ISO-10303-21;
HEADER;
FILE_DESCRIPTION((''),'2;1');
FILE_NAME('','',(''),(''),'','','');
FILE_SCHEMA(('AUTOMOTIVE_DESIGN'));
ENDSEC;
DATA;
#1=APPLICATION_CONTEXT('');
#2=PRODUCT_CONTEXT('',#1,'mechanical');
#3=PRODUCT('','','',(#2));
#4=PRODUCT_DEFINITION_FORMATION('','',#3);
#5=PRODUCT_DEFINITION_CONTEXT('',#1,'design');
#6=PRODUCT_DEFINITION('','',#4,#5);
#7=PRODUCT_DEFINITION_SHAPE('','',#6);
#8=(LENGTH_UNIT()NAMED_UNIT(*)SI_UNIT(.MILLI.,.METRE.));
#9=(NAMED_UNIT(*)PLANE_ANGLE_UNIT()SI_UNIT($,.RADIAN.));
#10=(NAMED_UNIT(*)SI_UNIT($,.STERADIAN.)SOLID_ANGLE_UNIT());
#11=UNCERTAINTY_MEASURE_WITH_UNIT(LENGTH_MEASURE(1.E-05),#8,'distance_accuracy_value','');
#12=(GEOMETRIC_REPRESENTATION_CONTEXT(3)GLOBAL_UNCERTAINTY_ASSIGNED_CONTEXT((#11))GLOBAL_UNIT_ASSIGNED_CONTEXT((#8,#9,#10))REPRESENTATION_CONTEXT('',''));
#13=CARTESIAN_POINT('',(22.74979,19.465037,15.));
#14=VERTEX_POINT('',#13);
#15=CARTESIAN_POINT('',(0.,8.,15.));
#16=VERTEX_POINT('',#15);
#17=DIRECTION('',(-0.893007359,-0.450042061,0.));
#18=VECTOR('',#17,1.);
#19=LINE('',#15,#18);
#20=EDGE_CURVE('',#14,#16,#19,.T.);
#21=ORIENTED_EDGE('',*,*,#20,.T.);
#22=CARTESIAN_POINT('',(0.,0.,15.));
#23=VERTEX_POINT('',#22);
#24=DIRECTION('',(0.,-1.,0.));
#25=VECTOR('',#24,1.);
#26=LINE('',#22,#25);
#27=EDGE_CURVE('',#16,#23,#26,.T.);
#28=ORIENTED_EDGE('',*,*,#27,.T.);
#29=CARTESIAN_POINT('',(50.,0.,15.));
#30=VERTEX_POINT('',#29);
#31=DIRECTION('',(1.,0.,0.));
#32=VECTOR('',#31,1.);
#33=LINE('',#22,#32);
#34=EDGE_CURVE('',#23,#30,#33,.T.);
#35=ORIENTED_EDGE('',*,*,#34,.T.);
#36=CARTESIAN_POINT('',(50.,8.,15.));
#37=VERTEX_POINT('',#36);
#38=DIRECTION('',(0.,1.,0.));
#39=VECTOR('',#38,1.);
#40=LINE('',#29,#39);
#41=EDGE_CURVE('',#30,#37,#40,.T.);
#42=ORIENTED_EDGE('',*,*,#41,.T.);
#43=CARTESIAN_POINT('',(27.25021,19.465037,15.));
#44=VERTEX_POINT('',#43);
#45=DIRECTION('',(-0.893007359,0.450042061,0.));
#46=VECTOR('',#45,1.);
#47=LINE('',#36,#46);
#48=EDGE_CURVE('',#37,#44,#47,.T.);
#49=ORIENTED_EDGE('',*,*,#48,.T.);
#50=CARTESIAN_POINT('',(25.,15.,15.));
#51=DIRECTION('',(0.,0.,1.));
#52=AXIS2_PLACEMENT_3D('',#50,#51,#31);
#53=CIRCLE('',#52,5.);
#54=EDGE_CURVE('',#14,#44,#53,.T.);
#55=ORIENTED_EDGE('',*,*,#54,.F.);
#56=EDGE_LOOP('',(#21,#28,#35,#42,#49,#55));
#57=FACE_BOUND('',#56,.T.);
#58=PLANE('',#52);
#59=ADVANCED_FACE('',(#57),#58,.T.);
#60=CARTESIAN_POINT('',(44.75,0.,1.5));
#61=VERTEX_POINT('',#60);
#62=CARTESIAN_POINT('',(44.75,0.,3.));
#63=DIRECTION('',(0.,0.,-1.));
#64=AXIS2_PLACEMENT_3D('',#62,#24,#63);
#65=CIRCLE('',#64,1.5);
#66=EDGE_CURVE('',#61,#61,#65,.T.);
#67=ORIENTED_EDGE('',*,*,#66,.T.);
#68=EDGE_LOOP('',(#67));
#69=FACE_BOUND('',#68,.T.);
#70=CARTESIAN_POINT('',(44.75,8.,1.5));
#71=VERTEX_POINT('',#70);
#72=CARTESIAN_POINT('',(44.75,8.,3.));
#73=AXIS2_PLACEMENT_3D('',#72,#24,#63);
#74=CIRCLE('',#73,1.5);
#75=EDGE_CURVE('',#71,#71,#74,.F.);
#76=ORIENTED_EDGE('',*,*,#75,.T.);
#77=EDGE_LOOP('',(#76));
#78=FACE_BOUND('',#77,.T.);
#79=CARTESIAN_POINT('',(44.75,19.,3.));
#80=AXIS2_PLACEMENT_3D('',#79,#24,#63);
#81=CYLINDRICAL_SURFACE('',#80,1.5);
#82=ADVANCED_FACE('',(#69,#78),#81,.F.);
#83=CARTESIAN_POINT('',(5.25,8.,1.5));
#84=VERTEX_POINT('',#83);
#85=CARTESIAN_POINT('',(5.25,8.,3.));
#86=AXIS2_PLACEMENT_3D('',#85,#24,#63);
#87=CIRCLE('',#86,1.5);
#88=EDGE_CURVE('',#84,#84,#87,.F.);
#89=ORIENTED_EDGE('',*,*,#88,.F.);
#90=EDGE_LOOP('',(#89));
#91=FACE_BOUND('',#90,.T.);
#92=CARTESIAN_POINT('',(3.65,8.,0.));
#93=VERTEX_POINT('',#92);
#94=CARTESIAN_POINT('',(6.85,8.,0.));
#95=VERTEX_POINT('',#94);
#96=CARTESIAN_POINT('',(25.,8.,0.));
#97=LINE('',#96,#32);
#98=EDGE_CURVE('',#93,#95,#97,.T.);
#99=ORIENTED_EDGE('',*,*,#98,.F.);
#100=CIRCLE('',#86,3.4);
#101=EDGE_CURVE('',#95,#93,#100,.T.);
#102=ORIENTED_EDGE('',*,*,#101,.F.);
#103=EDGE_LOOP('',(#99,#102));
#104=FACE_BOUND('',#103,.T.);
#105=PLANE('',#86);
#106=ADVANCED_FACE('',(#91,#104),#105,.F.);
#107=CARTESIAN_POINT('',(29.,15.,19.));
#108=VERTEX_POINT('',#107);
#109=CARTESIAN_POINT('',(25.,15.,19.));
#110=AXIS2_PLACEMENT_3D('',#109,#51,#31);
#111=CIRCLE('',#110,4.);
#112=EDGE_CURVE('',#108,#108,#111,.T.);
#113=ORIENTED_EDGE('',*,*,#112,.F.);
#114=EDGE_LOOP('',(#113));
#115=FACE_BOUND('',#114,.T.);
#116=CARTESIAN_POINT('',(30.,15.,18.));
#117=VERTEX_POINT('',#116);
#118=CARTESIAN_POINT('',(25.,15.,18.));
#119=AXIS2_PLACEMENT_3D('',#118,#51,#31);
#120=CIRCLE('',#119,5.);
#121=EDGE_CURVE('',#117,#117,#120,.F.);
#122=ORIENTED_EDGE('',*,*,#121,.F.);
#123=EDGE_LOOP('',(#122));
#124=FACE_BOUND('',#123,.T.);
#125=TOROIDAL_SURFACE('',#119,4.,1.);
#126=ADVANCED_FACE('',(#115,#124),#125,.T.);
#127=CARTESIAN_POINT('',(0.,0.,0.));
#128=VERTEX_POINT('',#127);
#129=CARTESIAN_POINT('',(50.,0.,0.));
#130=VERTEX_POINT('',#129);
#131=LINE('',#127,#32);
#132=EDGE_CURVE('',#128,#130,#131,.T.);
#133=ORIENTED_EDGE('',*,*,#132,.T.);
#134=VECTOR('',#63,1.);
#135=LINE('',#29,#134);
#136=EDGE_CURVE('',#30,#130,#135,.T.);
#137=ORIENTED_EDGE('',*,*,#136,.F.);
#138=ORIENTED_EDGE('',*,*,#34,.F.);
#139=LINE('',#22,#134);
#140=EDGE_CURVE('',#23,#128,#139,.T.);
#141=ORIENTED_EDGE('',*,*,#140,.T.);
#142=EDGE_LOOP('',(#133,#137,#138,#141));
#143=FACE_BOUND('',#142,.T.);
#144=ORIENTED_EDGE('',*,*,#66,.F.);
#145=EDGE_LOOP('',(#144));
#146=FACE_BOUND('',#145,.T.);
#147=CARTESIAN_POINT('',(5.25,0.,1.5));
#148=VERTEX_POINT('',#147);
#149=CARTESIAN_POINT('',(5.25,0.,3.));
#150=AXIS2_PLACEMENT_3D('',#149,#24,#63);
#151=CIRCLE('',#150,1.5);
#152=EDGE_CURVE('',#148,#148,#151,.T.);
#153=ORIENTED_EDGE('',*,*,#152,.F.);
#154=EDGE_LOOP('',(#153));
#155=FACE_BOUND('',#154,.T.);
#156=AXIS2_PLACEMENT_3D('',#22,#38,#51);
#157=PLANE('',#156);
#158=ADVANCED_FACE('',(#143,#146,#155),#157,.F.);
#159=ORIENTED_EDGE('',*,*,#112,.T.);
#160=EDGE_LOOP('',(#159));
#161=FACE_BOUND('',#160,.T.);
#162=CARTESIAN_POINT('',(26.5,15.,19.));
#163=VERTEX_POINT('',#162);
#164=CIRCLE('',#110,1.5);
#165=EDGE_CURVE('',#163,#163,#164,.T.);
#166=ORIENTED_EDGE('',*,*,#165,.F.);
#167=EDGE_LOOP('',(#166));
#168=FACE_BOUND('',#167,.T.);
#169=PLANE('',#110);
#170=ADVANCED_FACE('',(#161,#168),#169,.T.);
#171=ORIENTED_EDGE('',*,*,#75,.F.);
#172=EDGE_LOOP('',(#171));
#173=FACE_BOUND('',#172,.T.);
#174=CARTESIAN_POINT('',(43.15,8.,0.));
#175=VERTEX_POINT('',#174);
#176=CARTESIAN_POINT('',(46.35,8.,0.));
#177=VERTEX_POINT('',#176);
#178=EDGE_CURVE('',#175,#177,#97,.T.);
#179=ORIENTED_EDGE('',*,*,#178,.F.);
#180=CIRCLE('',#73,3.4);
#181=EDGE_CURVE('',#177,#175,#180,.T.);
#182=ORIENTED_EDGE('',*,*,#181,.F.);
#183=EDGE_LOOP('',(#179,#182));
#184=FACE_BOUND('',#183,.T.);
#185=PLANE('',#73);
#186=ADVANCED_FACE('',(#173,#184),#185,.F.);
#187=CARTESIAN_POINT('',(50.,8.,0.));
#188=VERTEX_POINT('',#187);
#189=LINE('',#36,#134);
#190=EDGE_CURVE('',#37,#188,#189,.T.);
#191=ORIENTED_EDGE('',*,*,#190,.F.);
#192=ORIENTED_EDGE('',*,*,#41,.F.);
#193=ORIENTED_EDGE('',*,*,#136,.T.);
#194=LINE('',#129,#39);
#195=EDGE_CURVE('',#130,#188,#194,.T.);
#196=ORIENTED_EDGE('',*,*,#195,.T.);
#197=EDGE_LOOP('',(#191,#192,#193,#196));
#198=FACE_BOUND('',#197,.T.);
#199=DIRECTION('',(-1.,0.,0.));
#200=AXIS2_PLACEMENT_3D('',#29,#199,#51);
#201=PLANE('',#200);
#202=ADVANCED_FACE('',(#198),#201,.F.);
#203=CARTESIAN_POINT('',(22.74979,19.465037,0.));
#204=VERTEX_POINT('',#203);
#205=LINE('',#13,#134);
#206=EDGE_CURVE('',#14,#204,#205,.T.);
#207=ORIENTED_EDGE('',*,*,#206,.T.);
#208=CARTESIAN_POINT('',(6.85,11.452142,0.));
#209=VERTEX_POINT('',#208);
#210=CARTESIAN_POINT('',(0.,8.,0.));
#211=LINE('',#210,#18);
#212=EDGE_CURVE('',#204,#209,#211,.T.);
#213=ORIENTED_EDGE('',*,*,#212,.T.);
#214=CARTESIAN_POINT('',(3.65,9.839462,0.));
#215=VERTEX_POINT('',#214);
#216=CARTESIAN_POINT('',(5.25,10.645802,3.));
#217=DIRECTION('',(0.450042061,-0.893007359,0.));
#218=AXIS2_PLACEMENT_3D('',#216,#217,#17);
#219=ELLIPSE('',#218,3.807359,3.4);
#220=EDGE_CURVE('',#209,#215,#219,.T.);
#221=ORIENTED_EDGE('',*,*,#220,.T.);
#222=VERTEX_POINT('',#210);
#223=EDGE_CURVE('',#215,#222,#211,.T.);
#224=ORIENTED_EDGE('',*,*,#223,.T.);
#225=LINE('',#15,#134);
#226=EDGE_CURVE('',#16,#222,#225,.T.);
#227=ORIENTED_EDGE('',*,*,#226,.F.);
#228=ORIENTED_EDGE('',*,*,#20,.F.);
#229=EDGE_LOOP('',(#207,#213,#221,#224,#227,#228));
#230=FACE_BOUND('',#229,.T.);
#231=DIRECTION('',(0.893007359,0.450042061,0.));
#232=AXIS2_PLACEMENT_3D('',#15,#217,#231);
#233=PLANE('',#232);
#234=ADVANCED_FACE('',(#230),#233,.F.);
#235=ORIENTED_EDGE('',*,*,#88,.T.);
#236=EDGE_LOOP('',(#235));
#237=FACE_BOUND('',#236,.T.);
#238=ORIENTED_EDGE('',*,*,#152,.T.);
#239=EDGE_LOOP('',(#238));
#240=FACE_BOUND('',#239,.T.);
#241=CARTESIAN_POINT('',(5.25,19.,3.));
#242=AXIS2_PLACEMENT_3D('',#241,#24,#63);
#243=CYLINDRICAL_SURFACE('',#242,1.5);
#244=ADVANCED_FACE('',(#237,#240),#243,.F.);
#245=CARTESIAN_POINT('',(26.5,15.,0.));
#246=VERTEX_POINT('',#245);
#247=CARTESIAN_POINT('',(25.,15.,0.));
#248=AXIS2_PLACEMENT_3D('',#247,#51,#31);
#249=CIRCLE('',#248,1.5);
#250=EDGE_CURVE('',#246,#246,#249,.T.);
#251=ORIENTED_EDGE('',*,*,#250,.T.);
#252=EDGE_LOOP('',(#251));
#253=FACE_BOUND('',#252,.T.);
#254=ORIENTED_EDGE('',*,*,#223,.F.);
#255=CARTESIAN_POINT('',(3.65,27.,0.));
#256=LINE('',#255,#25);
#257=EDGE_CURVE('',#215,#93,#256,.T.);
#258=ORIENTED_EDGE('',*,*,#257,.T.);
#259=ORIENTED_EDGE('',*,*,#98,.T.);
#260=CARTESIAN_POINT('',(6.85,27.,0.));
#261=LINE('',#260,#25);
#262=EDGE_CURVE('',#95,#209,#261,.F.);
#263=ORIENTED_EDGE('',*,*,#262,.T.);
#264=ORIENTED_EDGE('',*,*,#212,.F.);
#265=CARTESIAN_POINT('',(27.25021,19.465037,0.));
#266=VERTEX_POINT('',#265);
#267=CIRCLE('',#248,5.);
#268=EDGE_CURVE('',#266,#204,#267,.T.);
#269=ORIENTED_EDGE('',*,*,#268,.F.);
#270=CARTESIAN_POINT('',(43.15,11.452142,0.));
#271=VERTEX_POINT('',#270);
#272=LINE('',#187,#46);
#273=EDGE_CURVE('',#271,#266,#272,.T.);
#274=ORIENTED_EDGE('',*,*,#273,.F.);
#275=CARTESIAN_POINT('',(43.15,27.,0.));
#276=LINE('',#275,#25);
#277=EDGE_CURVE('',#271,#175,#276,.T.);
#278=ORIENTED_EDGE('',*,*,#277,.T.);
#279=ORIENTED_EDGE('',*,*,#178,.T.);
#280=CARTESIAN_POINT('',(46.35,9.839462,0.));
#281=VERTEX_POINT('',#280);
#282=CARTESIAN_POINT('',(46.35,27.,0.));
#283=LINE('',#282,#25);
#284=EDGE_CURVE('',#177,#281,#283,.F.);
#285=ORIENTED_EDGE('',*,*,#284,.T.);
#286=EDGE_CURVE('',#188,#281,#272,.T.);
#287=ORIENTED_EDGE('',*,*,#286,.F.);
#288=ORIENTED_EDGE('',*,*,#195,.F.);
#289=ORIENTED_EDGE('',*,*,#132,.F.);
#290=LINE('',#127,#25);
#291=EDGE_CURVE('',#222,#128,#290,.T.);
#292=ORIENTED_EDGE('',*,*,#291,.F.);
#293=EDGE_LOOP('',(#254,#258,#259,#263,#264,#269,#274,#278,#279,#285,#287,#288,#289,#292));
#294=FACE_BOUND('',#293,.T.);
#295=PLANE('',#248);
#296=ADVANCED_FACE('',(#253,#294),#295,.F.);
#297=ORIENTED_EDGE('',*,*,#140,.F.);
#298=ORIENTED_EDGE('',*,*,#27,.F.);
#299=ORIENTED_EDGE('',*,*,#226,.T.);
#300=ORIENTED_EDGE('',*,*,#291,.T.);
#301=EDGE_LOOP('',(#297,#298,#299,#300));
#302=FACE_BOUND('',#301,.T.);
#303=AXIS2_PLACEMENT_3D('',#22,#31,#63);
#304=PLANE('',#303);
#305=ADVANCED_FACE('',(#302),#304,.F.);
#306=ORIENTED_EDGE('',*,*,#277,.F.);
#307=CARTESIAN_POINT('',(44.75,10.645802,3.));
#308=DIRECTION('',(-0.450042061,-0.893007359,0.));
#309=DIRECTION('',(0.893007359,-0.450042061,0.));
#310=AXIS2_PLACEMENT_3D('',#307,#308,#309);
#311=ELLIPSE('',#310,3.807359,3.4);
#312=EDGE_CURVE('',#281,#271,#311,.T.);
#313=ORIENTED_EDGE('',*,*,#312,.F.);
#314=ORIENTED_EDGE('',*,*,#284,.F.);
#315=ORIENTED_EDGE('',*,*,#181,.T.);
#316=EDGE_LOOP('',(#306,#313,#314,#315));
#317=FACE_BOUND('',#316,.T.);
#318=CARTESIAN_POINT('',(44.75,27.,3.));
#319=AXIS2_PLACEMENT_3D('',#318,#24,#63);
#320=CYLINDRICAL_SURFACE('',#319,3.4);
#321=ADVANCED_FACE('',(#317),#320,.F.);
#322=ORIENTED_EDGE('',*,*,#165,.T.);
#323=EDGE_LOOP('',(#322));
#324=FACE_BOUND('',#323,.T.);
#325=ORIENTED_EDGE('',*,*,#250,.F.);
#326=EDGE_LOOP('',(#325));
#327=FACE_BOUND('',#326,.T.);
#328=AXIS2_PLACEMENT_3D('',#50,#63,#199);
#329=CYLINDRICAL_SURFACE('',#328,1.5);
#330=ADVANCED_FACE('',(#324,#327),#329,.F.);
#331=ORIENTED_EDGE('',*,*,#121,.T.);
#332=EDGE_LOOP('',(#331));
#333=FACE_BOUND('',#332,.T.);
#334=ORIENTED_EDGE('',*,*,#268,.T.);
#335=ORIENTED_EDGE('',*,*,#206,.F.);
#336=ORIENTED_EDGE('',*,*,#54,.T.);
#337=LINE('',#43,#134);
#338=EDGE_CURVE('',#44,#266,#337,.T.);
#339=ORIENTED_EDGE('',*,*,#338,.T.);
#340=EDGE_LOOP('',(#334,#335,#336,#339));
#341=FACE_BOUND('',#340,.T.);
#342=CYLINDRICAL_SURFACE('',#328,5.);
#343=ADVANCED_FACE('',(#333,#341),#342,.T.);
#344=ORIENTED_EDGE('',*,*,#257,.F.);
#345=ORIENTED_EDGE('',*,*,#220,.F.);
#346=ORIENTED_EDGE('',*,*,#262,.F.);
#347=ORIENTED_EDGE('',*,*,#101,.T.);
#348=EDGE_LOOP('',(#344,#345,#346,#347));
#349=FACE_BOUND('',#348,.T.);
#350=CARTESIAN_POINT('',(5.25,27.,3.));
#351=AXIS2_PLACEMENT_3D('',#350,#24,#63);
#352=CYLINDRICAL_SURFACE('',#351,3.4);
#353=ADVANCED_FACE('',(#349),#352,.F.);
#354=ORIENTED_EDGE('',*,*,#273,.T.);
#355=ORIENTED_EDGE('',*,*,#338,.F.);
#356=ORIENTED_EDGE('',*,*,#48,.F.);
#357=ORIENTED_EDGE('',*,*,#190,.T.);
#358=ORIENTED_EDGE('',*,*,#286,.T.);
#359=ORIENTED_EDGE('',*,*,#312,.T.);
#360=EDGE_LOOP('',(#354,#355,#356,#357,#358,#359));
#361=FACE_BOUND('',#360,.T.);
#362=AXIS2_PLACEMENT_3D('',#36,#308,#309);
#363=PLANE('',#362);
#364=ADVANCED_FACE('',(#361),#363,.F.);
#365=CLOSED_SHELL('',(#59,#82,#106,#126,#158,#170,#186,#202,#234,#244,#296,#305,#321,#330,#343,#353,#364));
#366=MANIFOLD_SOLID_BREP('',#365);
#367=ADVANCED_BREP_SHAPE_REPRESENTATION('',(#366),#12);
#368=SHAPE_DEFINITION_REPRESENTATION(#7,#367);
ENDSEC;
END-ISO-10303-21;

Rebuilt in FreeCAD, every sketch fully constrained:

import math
import FreeCAD as App
import Part
import Sketcher
from FreeCAD import Vector
Q = App.Units.Quantity


def edges_at(feature, points):
    """Names of the edges that pass closest to the given points."""
    edges = feature.Shape.Edges
    near = lambda p: min(range(len(edges)), key=lambda i: edges[i].distToShape(Part.Vertex(*p))[0])
    return sorted({f"Edge{near(p) + 1}" for p in points})

doc = App.newDocument("Part")
body = doc.addObject("PartDesign::Body", "Body")

# Sketch on XY plane
sketch1 = body.newObject("Sketcher::SketchObject", "Sketch")
sketch1.AttachmentSupport = (doc.getObject("XY_Plane"), [""])
sketch1.MapMode = "FlatFace"
sketch1.addGeometry(Part.LineSegment(Vector(0, 0, 0), Vector(50, 0, 0)), False)
sketch1.addGeometry(Part.LineSegment(Vector(50, 0, 0), Vector(50, 8, 0)), False)
sketch1.addGeometry(Part.LineSegment(Vector(50, 8, 0), Vector(27.25021, 19.465037, 0)), False)
sketch1.addGeometry(Part.ArcOfCircle(Part.Circle(Vector(25, 15, 0), Vector(0, 0, 1), 5), math.radians(63.253617), math.radians(116.746383)), False)
sketch1.addGeometry(Part.LineSegment(Vector(22.74979, 19.465037, 0), Vector(0, 8, 0)), False)
sketch1.addGeometry(Part.LineSegment(Vector(0, 8, 0), Vector(0, 0, 0)), False)
sketch1.addGeometry(Part.Circle(Vector(25, 15, 0), Vector(0, 0, 1), 1.5), False)
sketch1.addConstraint(Sketcher.Constraint("Coincident", 0, 2, 1, 1))
sketch1.addConstraint(Sketcher.Constraint("Coincident", 1, 2, 2, 1))
sketch1.addConstraint(Sketcher.Constraint("Tangent", 2, 2, 3, 1))
sketch1.addConstraint(Sketcher.Constraint("Tangent", 3, 2, 4, 1))
sketch1.addConstraint(Sketcher.Constraint("Coincident", 4, 2, 5, 1))
sketch1.addConstraint(Sketcher.Constraint("Coincident", 5, 2, 0, 1))
sketch1.addConstraint(Sketcher.Constraint("Horizontal", 0))
sketch1.addConstraint(Sketcher.Constraint("Vertical", 1))
sketch1.addConstraint(Sketcher.Constraint("Vertical", 5))
sketch1.addConstraint(Sketcher.Constraint("Coincident", 5, 2, -1, 1))
sketch1.addConstraint(Sketcher.Constraint("Coincident", 6, 3, 3, 3))
sketch1.addConstraint(Sketcher.Constraint("Horizontal", 2, 2, 3, 2))
sketch1.addConstraint(Sketcher.Constraint("Horizontal", 1, 2, 4, 2))
sketch1.addConstraint(Sketcher.Constraint("Diameter", 6, Q("3 mm")))
sketch1.addConstraint(Sketcher.Constraint("Radius", 3, Q("5 mm")))
sketch1.addConstraint(Sketcher.Constraint("DistanceX", 0, 1, 0, 2, Q("50 mm")))
sketch1.addConstraint(Sketcher.Constraint("DistanceY", 1, 1, 1, 2, Q("8 mm")))
sketch1.addConstraint(Sketcher.Constraint("DistanceY", -1, 1, 3, 3, Q("15 mm")))
pad1 = body.newObject("PartDesign::Pad", "Pad")
pad1.Profile = sketch1
pad1.Length = 15

# Sketch on XY plane
sketch2 = body.newObject("Sketcher::SketchObject", "Sketch001")
sketch2.AttachmentSupport = (doc.getObject("XY_Plane"), [""])
sketch2.MapMode = "FlatFace"
sketch2.AttachmentOffset = App.Placement(Vector(0, 0, 15), App.Rotation())
sketch2.addGeometry(Part.Circle(Vector(25, 15, 0), Vector(0, 0, 1), 5), False)
sketch2.addGeometry(Part.Circle(Vector(25, 15, 0), Vector(0, 0, 1), 1.5), False)
sketch2.addConstraint(Sketcher.Constraint("Coincident", 1, 3, 0, 3))
sketch2.addConstraint(Sketcher.Constraint("Diameter", 0, Q("10 mm")))
sketch2.addConstraint(Sketcher.Constraint("Diameter", 1, Q("3 mm")))
sketch2.addConstraint(Sketcher.Constraint("DistanceX", -1, 1, 0, 3, Q("25 mm")))
sketch2.addConstraint(Sketcher.Constraint("DistanceY", -1, 1, 0, 3, Q("15 mm")))
pad2 = body.newObject("PartDesign::Pad", "Pad001")
pad2.Profile = sketch2
pad2.Length = 4
doc.recompute()

fillet = body.newObject("PartDesign::Fillet", "Fillet")
fillet.Base = (pad2, edges_at(pad2, [(27.25, 10.535, 19)]))
fillet.Radius = 1

# Sketch on XZ plane
sketch3 = body.newObject("Sketcher::SketchObject", "Sketch002")
sketch3.AttachmentSupport = (doc.getObject("XZ_Plane"), [""])
sketch3.MapMode = "FlatFace"
sketch3.addGeometry(Part.Circle(Vector(5.25, 3, 0), Vector(0, 0, 1), 1.5), False)
sketch3.addGeometry(Part.Circle(Vector(44.75, 3, 0), Vector(0, 0, 1), 1.5), False)
sketch3.addConstraint(Sketcher.Constraint("Equal", 0, 1))
sketch3.addConstraint(Sketcher.Constraint("Horizontal", 0, 3, 1, 3))
sketch3.addConstraint(Sketcher.Constraint("Diameter", 0, Q("3 mm")))
sketch3.addConstraint(Sketcher.Constraint("DistanceY", -1, 1, 0, 3, Q("3 mm")))
sketch3.addConstraint(Sketcher.Constraint("DistanceX", 0, 3, 1, 3, Q("39.5 mm")))
sketch3.addConstraint(Sketcher.Constraint("DistanceX", -1, 1, 0, 3, Q("5.25 mm")))
pocket1 = body.newObject("PartDesign::Pocket", "Pocket")
pocket1.Profile = sketch3
pocket1.Length = 19

# Sketch on XZ plane
sketch4 = body.newObject("Sketcher::SketchObject", "Sketch003")
sketch4.AttachmentSupport = (doc.getObject("XZ_Plane"), [""])
sketch4.MapMode = "FlatFace"
sketch4.AttachmentOffset = App.Placement(Vector(0, 0, -8), App.Rotation())
sketch4.addGeometry(Part.Circle(Vector(44.75, 3, 0), Vector(0, 0, 1), 3.4), False)
sketch4.addGeometry(Part.Circle(Vector(5.25, 3, 0), Vector(0, 0, 1), 3.4), False)
sketch4.addConstraint(Sketcher.Constraint("Equal", 0, 1))
sketch4.addConstraint(Sketcher.Constraint("Horizontal", 0, 3, 1, 3))
sketch4.addConstraint(Sketcher.Constraint("Diameter", 0, Q("6.8 mm")))
sketch4.addConstraint(Sketcher.Constraint("DistanceY", -1, 1, 0, 3, Q("3 mm")))
sketch4.addConstraint(Sketcher.Constraint("DistanceX", 1, 3, 0, 3, Q("39.5 mm")))
sketch4.addConstraint(Sketcher.Constraint("DistanceX", -1, 1, 0, 3, Q("44.75 mm")))
pocket2 = body.newObject("PartDesign::Pocket", "Pocket001")
pocket2.Profile = sketch4
pocket2.Length = 19

doc.recompute()
